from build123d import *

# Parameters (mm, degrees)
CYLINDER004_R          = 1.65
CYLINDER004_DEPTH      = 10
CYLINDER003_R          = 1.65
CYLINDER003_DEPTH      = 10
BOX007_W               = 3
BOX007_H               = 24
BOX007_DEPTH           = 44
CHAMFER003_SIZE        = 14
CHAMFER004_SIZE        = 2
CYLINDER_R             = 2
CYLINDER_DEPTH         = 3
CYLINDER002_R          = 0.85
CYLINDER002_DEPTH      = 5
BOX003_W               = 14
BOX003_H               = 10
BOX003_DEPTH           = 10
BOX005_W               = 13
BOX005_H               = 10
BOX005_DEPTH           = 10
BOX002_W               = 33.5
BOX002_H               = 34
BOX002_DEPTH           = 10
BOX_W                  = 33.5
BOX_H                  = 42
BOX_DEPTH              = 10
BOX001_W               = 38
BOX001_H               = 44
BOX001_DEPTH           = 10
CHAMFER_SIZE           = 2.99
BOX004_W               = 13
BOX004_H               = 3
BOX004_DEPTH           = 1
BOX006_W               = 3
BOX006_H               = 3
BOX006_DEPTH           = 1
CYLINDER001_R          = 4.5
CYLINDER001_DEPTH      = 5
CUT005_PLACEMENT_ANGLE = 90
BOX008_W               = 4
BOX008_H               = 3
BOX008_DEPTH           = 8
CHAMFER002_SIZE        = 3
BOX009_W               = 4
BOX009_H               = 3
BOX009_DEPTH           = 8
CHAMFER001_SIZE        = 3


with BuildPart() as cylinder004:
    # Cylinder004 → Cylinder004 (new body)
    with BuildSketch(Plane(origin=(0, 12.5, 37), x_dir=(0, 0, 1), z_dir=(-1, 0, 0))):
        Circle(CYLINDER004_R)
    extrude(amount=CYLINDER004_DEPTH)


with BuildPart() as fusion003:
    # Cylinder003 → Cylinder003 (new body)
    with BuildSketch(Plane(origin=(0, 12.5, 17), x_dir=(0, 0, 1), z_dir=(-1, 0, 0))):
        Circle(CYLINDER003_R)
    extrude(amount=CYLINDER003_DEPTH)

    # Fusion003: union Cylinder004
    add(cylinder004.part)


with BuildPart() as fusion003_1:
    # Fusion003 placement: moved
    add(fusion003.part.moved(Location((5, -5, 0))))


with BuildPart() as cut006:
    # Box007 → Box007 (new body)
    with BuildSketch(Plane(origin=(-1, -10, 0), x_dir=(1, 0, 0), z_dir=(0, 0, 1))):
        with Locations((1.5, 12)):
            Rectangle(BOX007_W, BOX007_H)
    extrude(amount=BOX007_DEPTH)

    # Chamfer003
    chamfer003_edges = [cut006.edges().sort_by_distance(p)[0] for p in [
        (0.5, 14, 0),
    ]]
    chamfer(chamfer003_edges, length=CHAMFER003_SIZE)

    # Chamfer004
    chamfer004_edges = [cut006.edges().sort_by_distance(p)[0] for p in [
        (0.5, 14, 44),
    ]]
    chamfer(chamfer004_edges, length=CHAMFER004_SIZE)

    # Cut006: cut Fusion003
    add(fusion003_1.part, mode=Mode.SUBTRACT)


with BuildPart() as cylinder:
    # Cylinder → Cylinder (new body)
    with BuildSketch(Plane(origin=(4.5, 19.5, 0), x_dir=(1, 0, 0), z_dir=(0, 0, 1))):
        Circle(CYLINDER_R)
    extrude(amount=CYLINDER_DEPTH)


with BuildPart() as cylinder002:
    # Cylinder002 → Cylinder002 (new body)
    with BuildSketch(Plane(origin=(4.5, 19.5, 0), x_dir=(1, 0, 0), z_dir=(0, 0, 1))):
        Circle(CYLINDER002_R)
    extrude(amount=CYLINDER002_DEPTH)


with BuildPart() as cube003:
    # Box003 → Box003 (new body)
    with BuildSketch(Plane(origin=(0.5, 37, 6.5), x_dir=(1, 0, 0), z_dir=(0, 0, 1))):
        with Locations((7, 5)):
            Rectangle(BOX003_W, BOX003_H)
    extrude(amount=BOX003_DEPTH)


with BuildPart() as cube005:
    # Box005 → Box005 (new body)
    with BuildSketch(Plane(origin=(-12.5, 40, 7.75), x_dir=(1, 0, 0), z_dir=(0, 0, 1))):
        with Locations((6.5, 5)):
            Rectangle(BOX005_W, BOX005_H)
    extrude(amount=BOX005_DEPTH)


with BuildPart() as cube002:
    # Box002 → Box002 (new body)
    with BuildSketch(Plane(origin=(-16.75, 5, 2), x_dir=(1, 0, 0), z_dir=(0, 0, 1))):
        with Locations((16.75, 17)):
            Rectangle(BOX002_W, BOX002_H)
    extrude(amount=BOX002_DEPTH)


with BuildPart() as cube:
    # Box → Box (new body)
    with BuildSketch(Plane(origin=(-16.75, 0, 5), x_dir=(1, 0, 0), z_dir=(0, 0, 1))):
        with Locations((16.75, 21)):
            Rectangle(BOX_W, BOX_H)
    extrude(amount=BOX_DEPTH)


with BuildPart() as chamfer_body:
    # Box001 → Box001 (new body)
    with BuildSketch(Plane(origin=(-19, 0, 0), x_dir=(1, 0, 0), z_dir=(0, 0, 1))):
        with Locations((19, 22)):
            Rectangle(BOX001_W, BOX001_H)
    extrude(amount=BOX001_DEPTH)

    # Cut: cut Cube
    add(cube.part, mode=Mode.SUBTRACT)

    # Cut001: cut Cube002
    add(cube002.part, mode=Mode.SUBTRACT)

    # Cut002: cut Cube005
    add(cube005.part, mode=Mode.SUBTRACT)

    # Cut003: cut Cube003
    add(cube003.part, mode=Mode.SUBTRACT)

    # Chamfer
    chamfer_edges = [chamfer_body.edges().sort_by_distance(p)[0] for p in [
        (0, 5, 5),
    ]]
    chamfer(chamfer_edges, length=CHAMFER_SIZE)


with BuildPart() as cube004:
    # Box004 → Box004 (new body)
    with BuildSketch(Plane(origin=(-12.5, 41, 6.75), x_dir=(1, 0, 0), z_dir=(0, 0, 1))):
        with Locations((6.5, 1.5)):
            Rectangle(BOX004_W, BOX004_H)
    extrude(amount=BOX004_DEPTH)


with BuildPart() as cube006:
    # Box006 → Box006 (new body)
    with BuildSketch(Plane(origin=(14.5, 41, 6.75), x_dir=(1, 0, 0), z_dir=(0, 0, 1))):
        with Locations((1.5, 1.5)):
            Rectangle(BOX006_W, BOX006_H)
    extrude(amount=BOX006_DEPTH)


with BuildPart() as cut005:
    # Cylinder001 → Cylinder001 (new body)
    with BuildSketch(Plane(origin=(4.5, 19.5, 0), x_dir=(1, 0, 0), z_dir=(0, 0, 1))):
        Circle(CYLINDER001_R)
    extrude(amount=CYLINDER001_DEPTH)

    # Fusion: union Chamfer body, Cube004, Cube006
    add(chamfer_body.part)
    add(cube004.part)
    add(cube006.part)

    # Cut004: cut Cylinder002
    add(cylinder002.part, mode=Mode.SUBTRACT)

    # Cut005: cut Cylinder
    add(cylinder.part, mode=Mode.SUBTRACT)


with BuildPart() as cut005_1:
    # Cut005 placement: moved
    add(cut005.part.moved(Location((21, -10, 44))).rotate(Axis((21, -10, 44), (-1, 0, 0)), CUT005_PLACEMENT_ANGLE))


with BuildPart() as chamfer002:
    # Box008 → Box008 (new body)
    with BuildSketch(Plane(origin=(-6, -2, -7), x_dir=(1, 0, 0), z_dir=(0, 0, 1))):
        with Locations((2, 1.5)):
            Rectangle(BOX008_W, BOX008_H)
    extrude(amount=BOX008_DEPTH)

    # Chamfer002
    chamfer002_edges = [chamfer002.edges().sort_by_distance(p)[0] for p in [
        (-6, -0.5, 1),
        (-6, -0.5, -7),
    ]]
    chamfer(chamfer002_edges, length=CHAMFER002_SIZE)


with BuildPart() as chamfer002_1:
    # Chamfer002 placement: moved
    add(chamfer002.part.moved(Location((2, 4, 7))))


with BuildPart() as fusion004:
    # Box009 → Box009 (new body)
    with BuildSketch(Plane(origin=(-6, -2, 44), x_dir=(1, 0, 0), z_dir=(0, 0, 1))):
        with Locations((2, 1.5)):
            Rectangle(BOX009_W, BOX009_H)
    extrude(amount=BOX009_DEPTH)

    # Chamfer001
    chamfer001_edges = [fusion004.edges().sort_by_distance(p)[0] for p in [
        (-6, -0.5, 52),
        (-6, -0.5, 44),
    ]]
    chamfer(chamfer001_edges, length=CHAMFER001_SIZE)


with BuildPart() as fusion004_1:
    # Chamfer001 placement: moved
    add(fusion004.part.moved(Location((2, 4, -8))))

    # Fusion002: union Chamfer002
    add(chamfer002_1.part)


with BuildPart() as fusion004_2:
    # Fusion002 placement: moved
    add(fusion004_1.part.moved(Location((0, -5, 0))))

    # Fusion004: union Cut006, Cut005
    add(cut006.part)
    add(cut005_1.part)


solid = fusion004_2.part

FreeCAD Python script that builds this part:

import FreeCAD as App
import Part
import Sketcher

V = App.Vector
Q = App.Units.Quantity


def edges_at(feature, points):
    """Names of the edges that pass closest to the given points."""
    edges = feature.Shape.Edges
    near = lambda p: min(range(len(edges)), key=lambda i: edges[i].distToShape(Part.Vertex(*p))[0])
    return sorted({f"Edge{near(p) + 1}" for p in points})


def add_polygon(sketch, points):
    """Adds a closed chain of lines whose ends are joined by coincident constraints."""
    first, n = sketch.GeometryCount, len(points)
    for a, b in zip(points, points[1:] + points[:1]):
        sketch.addGeometry(Part.LineSegment(App.Vector(*a, 0), App.Vector(*b, 0)), False)
    for i in range(n):
        sketch.addConstraint(Sketcher.Constraint("Coincident", first + i, 2, first + (i + 1) % n, 1))

doc = App.newDocument("Part")
body = doc.addObject("PartDesign::Body", "Body")

sketch1 = body.newObject("Sketcher::SketchObject", "Sketch")
sketch1.AttachmentSupport = (doc.getObject("YZ_Plane"), [""])
sketch1.MapMode = "FlatFace"
sketch1.addGeometry(Part.Circle(V(12.5, 37, 0), V(0, 0, 1), 1.6), False)
sketch1.addConstraint(Sketcher.Constraint("Diameter", 0, Q("3.3 mm")))
sketch1.addConstraint(Sketcher.Constraint("DistanceY", -1, 1, 0, 3, Q("37 mm")))
sketch1.addConstraint(Sketcher.Constraint("DistanceX", -1, 1, 0, 3, Q("12.5 mm")))
pad1 = body.newObject("PartDesign::Pad", "Pad")
pad1.Profile = sketch1
pad1.Length = 10
pad1.Reversed = True
body2 = doc.addObject("PartDesign::Body", "Body001")
body2.AllowCompound = True

sketch2 = body2.newObject("Sketcher::SketchObject", "Sketch001")
sketch2.AttachmentSupport = (doc.getObject("YZ_Plane001"), [""])
sketch2.MapMode = "FlatFace"
sketch2.addGeometry(Part.Circle(V(12.5, 17, 0), V(0, 0, 1), 1.6), False)
sketch2.addConstraint(Sketcher.Constraint("Diameter", 0, Q("3.3 mm")))
sketch2.addConstraint(Sketcher.Constraint("DistanceY", -1, 1, 0, 3, Q("17 mm")))
sketch2.addConstraint(Sketcher.Constraint("DistanceX", -1, 1, 0, 3, Q("12.5 mm")))
pad2 = body2.newObject("PartDesign::Pad", "Pad001")
pad2.Profile = sketch2
pad2.Length = 10
pad2.Reversed = True
doc.recompute()

boolean = body2.newObject("PartDesign::Boolean", "Boolean")
boolean.Type = "Fuse"
boolean.addObjects([body])
body3 = doc.addObject("PartDesign::Body", "Body002")
body3.AllowCompound = True
doc.recompute()

body2.Placement = App.Placement(V(5, -5, 0), App.Rotation(V(0, 0, 1), 0))
boolean2 = body3.newObject("PartDesign::Boolean", "Boolean001")
boolean2.Type = "Fuse"
boolean2.addObjects([body2])
body4 = doc.addObject("PartDesign::Body", "Body003")

sketch3 = body4.newObject("Sketcher::SketchObject", "Sketch002")
sketch3.AttachmentSupport = (doc.getObject("XY_Plane003"), [""])
sketch3.MapMode = "FlatFace"
add_polygon(sketch3, [(-1, 14), (-1, -10), (2, -10), (2, 14)])
sketch3.addConstraint(Sketcher.Constraint("Vertical", 0))
sketch3.addConstraint(Sketcher.Constraint("Horizontal", 1))
sketch3.addConstraint(Sketcher.Constraint("Vertical", 2))
sketch3.addConstraint(Sketcher.Constraint("Horizontal", 3))
sketch3.addConstraint(Sketcher.Constraint("DistanceX", 1, 1, 1, 2, Q("3 mm")))
sketch3.addConstraint(Sketcher.Constraint("DistanceY", 0, 2, 0, 1, Q("24 mm")))
sketch3.addConstraint(Sketcher.Constraint("DistanceX", 0, 2, -1, 1, Q("1 mm")))
sketch3.addConstraint(Sketcher.Constraint("DistanceY", 0, 2, -1, 1, Q("10 mm")))
pad3 = body4.newObject("PartDesign::Pad", "Pad002")
pad3.Profile = sketch3
pad3.Length = 44
doc.recompute()

chamfer = body4.newObject("PartDesign::Chamfer", "Chamfer")
chamfer.Base = (pad3, edges_at(pad3, [(0.5, 14, 0)]))
chamfer.Size = 14
doc.recompute()

chamfer2 = body4.newObject("PartDesign::Chamfer", "Chamfer001")
chamfer2.Base = (chamfer, edges_at(chamfer, [(0.5, 14, 44)]))
chamfer2.Size = 2
doc.recompute()

boolean3 = body4.newObject("PartDesign::Boolean", "Boolean002")
boolean3.Type = "Cut"
boolean3.addObjects([body3])
body5 = doc.addObject("PartDesign::Body", "Body004")

sketch4 = body5.newObject("Sketcher::SketchObject", "Sketch003")
sketch4.AttachmentSupport = (doc.getObject("XY_Plane004"), [""])
sketch4.MapMode = "FlatFace"
sketch4.addGeometry(Part.Circle(V(4.5, 19.5, 0), V(0, 0, 1), 2), False)
sketch4.addConstraint(Sketcher.Constraint("Diameter", 0, Q("4 mm")))
sketch4.addConstraint(Sketcher.Constraint("DistanceX", -1, 1, 0, 3, Q("4.5 mm")))
sketch4.addConstraint(Sketcher.Constraint("DistanceY", -1, 1, 0, 3, Q("19.5 mm")))
pad4 = body5.newObject("PartDesign::Pad", "Pad003")
pad4.Profile = sketch4
pad4.Length = 3
body6 = doc.addObject("PartDesign::Body", "Body005")

sketch5 = body6.newObject("Sketcher::SketchObject", "Sketch004")
sketch5.AttachmentSupport = (doc.getObject("XY_Plane005"), [""])
sketch5.MapMode = "FlatFace"
sketch5.addGeometry(Part.Circle(V(4.5, 19.5, 0), V(0, 0, 1), 0.8), False)
sketch5.addConstraint(Sketcher.Constraint("Diameter", 0, Q("1.7 mm")))
sketch5.addConstraint(Sketcher.Constraint("DistanceX", -1, 1, 0, 3, Q("4.5 mm")))
sketch5.addConstraint(Sketcher.Constraint("DistanceY", -1, 1, 0, 3, Q("19.5 mm")))
pad5 = body6.newObject("PartDesign::Pad", "Pad004")
pad5.Profile = sketch5
pad5.Length = 5
body7 = doc.addObject("PartDesign::Body", "Body006")

sketch6 = body7.newObject("Sketcher::SketchObject", "Sketch005")
sketch6.AttachmentSupport = (doc.getObject("XY_Plane006"), [""])
sketch6.MapMode = "FlatFace"
sketch6.AttachmentOffset = App.Placement(V(0, 0, 6.5), App.Rotation())
add_polygon(sketch6, [(0, 47), (0, 37), (14, 37), (14, 47)])
sketch6.addConstraint(Sketcher.Constraint("Vertical", 0))
sketch6.addConstraint(Sketcher.Constraint("Horizontal", 1))
sketch6.addConstraint(Sketcher.Constraint("Vertical", 2))
sketch6.addConstraint(Sketcher.Constraint("Horizontal", 3))
sketch6.addConstraint(Sketcher.Constraint("DistanceX", 1, 1, 1, 2, Q("14 mm")))
sketch6.addConstraint(Sketcher.Constraint("DistanceY", 0, 2, 0, 1, Q("10 mm")))
sketch6.addConstraint(Sketcher.Constraint("DistanceY", -1, 1, 0, 2, Q("37 mm")))
sketch6.addConstraint(Sketcher.Constraint("DistanceX", -1, 1, 0, 2, Q("0.5 mm")))
pad6 = body7.newObject("PartDesign::Pad", "Pad005")
pad6.Profile = sketch6
pad6.Length = 10
body8 = doc.addObject("PartDesign::Body", "Body007")

sketch7 = body8.newObject("Sketcher::SketchObject", "Sketch006")
sketch7.AttachmentSupport = (doc.getObject("XY_Plane007"), [""])
sketch7.MapMode = "FlatFace"
sketch7.AttachmentOffset = App.Placement(V(0, 0, 7.75), App.Rotation())
add_polygon(sketch7, [(-12, 50), (-12, 40), (0, 40), (0, 50)])
sketch7.addConstraint(Sketcher.Constraint("Vertical", 0))
sketch7.addConstraint(Sketcher.Constraint("Horizontal", 1))
sketch7.addConstraint(Sketcher.Constraint("Vertical", 2))
sketch7.addConstraint(Sketcher.Constraint("Horizontal", 3))
sketch7.addConstraint(Sketcher.Constraint("DistanceX", 1, 1, 1, 2, Q("13 mm")))
sketch7.addConstraint(Sketcher.Constraint("DistanceY", 0, 2, 0, 1, Q("10 mm")))
sketch7.addConstraint(Sketcher.Constraint("DistanceY", -1, 1, 0, 2, Q("40 mm")))
sketch7.addConstraint(Sketcher.Constraint("DistanceX", 0, 2, -1, 1, Q("12.5 mm")))
pad7 = body8.newObject("PartDesign::Pad", "Pad006")
pad7.Profile = sketch7
pad7.Length = 10
body9 = doc.addObject("PartDesign::Body", "Body008")

sketch8 = body9.newObject("Sketcher::SketchObject", "Sketch007")
sketch8.AttachmentSupport = (doc.getObject("XY_Plane008"), [""])
sketch8.MapMode = "FlatFace"
sketch8.AttachmentOffset = App.Placement(V(0, 0, 2), App.Rotation())
add_polygon(sketch8, [(-17, 39), (-17, 5), (17, 5), (17, 39)])
sketch8.addConstraint(Sketcher.Constraint("Vertical", 0))
sketch8.addConstraint(Sketcher.Constraint("Horizontal", 1))
sketch8.addConstraint(Sketcher.Constraint("Vertical", 2))
sketch8.addConstraint(Sketcher.Constraint("Horizontal", 3))
sketch8.addConstraint(Sketcher.Constraint("DistanceY", 0, 2, 0, 1, Q("34 mm")))
sketch8.addConstraint(Sketcher.Constraint("DistanceX", 1, 1, 1, 2, Q("33.5 mm")))
sketch8.addConstraint(Sketcher.Constraint("DistanceY", -1, 1, 0, 2, Q("5 mm")))
sketch8.addConstraint(Sketcher.Constraint("DistanceX", 0, 2, -1, 1, Q("16.75 mm")))
pad8 = body9.newObject("PartDesign::Pad", "Pad007")
pad8.Profile = sketch8
pad8.Length = 10
body10 = doc.addObject("PartDesign::Body", "Body009")

sketch9 = body10.newObject("Sketcher::SketchObject", "Sketch008")
sketch9.AttachmentSupport = (doc.getObject("XY_Plane009"), [""])
sketch9.MapMode = "FlatFace"
sketch9.AttachmentOffset = App.Placement(V(0, 0, 5), App.Rotation())
add_polygon(sketch9, [(-17, 42), (-17, 0), (17, 0), (17, 42)])
sketch9.addConstraint(Sketcher.Constraint("Vertical", 0))
sketch9.addConstraint(Sketcher.Constraint("Horizontal", 1))
sketch9.addConstraint(Sketcher.Constraint("Vertical", 2))
sketch9.addConstraint(Sketcher.Constraint("Horizontal", 3))
sketch9.addConstraint(Sketcher.Constraint("Symmetric", 0, 2, 1, 2, -1, 1))
sketch9.addConstraint(Sketcher.Constraint("DistanceY", 0, 2, 0, 1, Q("42 mm")))
sketch9.addConstraint(Sketcher.Constraint("DistanceX", 1, 1, 1, 2, Q("33.5 mm")))
pad9 = body10.newObject("PartDesign::Pad", "Pad008")
pad9.Profile = sketch9
pad9.Length = 10
body11 = doc.addObject("PartDesign::Body", "Body010")

sketch10 = body11.newObject("Sketcher::SketchObject", "Sketch009")
sketch10.AttachmentSupport = (doc.getObject("XY_Plane010"), [""])
sketch10.MapMode = "FlatFace"
add_polygon(sketch10, [(-19, 44), (-19, 0), (19, 0), (19, 44)])
sketch10.addConstraint(Sketcher.Constraint("Vertical", 0))
sketch10.addConstraint(Sketcher.Constraint("Horizontal", 1))
sketch10.addConstraint(Sketcher.Constraint("Vertical", 2))
sketch10.addConstraint(Sketcher.Constraint("Horizontal", 3))
sketch10.addConstraint(Sketcher.Constraint("Symmetric", 0, 2, 1, 2, -1, 1))
sketch10.addConstraint(Sketcher.Constraint("DistanceX", 1, 1, 1, 2, Q("38 mm")))
sketch10.addConstraint(Sketcher.Constraint("DistanceY", 0, 2, 0, 1, Q("44 mm")))
pad10 = body11.newObject("PartDesign::Pad", "Pad009")
pad10.Profile = sketch10
pad10.Length = 10
doc.recompute()

boolean4 = body11.newObject("PartDesign::Boolean", "Boolean003")
boolean4.Type = "Cut"
boolean4.addObjects([body10])
doc.recompute()

boolean5 = body11.newObject("PartDesign::Boolean", "Boolean004")
boolean5.Type = "Cut"
boolean5.addObjects([body9])
doc.recompute()

boolean6 = body11.newObject("PartDesign::Boolean", "Boolean005")
boolean6.Type = "Cut"
boolean6.addObjects([body8])
doc.recompute()

boolean7 = body11.newObject("PartDesign::Boolean", "Boolean006")
boolean7.Type = "Cut"
boolean7.addObjects([body7])
doc.recompute()

chamfer3 = body11.newObject("PartDesign::Chamfer", "Chamfer002")
chamfer3.Base = (boolean7, edges_at(boolean7, [(0, 5, 5)]))
chamfer3.Size = 2.99
body12 = doc.addObject("PartDesign::Body", "Body011")

sketch11 = body12.newObject("Sketcher::SketchObject", "Sketch010")
sketch11.AttachmentSupport = (doc.getObject("XY_Plane011"), [""])
sketch11.MapMode = "FlatFace"
sketch11.AttachmentOffset = App.Placement(V(0, 0, 6.75), App.Rotation())
add_polygon(sketch11, [(-12.5, 44), (-12.5, 41), (0.5, 41), (0.5, 44)])
sketch11.addConstraint(Sketcher.Constraint("Vertical", 0))
sketch11.addConstraint(Sketcher.Constraint("Horizontal", 1))
sketch11.addConstraint(Sketcher.Constraint("Vertical", 2))
sketch11.addConstraint(Sketcher.Constraint("Horizontal", 3))
sketch11.addConstraint(Sketcher.Constraint("DistanceX", 1, 1, 1, 2, Q("13 mm")))
sketch11.addConstraint(Sketcher.Constraint("DistanceY", 0, 2, 0, 1, Q("3 mm")))
sketch11.addConstraint(Sketcher.Constraint("DistanceY", -1, 1, 0, 2, Q("41 mm")))
sketch11.addConstraint(Sketcher.Constraint("DistanceX", 0, 2, -1, 1, Q("12.5 mm")))
pad11 = body12.newObject("PartDesign::Pad", "Pad010")
pad11.Profile = sketch11
pad11.Length = 1
body13 = doc.addObject("PartDesign::Body", "Body012")

sketch12 = body13.newObject("Sketcher::SketchObject", "Sketch011")
sketch12.AttachmentSupport = (doc.getObject("XY_Plane012"), [""])
sketch12.MapMode = "FlatFace"
sketch12.AttachmentOffset = App.Placement(V(0, 0, 6.75), App.Rotation())
add_polygon(sketch12, [(14.5, 44), (14.5, 41), (17.5, 41), (17.5, 44)])
sketch12.addConstraint(Sketcher.Constraint("Vertical", 0))
sketch12.addConstraint(Sketcher.Constraint("Horizontal", 1))
sketch12.addConstraint(Sketcher.Constraint("Vertical", 2))
sketch12.addConstraint(Sketcher.Constraint("Horizontal", 3))
sketch12.addConstraint(Sketcher.Constraint("Equal", 3, 0))
sketch12.addConstraint(Sketcher.Constraint("DistanceX", 1, 1, 1, 2, Q("3 mm")))
sketch12.addConstraint(Sketcher.Constraint("DistanceY", -1, 1, 0, 2, Q("41 mm")))
sketch12.addConstraint(Sketcher.Constraint("DistanceX", -1, 1, 0, 2, Q("14.5 mm")))
pad12 = body13.newObject("PartDesign::Pad", "Pad011")
pad12.Profile = sketch12
pad12.Length = 1
body14 = doc.addObject("PartDesign::Body", "Body013")

sketch13 = body14.newObject("Sketcher::SketchObject", "Sketch012")
sketch13.AttachmentSupport = (doc.getObject("XY_Plane013"), [""])
sketch13.MapMode = "FlatFace"
sketch13.addGeometry(Part.Circle(V(4.5, 19.5, 0), V(0, 0, 1), 4.5), False)
sketch13.addConstraint(Sketcher.Constraint("Diameter", 0, Q("9 mm")))
sketch13.addConstraint(Sketcher.Constraint("DistanceX", -1, 1, 0, 3, Q("4.5 mm")))
sketch13.addConstraint(Sketcher.Constraint("DistanceY", -1, 1, 0, 3, Q("19.5 mm")))
pad13 = body14.newObject("PartDesign::Pad", "Pad012")
pad13.Profile = sketch13
pad13.Length = 5
doc.recompute()

boolean8 = body14.newObject("PartDesign::Boolean", "Boolean007")
boolean8.Type = "Fuse"
boolean8.addObjects([body11])
doc.recompute()

boolean9 = body14.newObject("PartDesign::Boolean", "Boolean008")
boolean9.Type = "Fuse"
boolean9.addObjects([body12])
doc.recompute()

boolean10 = body14.newObject("PartDesign::Boolean", "Boolean009")
boolean10.Type = "Fuse"
boolean10.addObjects([body13])
doc.recompute()

boolean11 = body14.newObject("PartDesign::Boolean", "Boolean010")
boolean11.Type = "Cut"
boolean11.addObjects([body6])
doc.recompute()

boolean12 = body14.newObject("PartDesign::Boolean", "Boolean011")
boolean12.Type = "Cut"
boolean12.addObjects([body5])
body15 = doc.addObject("PartDesign::Body", "Body014")
doc.recompute()

body14.Placement = App.Placement(V(21, -10, 44), App.Rotation(V(-1, 0, 0), 90))
boolean13 = body15.newObject("PartDesign::Boolean", "Boolean012")
boolean13.Type = "Fuse"
boolean13.addObjects([body14])
body16 = doc.addObject("PartDesign::Body", "Body015")

sketch14 = body16.newObject("Sketcher::SketchObject", "Sketch013")
sketch14.AttachmentSupport = (doc.getObject("XY_Plane015"), [""])
sketch14.MapMode = "FlatFace"
sketch14.AttachmentOffset = App.Placement(V(0, 0, -7), App.Rotation())
add_polygon(sketch14, [(-6, 1), (-6, -2), (-2, -2), (-2, 1)])
sketch14.addConstraint(Sketcher.Constraint("Vertical", 0))
sketch14.addConstraint(Sketcher.Constraint("Horizontal", 1))
sketch14.addConstraint(Sketcher.Constraint("Vertical", 2))
sketch14.addConstraint(Sketcher.Constraint("Horizontal", 3))
sketch14.addConstraint(Sketcher.Constraint("DistanceX", 1, 1, 1, 2, Q("4 mm")))
sketch14.addConstraint(Sketcher.Constraint("DistanceY", 0, 2, 0, 1, Q("3 mm")))
sketch14.addConstraint(Sketcher.Constraint("DistanceX", 0, 2, -1, 1, Q("6 mm")))
sketch14.addConstraint(Sketcher.Constraint("DistanceY", 0, 2, -1, 1, Q("2 mm")))
pad14 = body16.newObject("PartDesign::Pad", "Pad013")
pad14.Profile = sketch14
pad14.Length = 8
doc.recompute()

chamfer4 = body16.newObject("PartDesign::Chamfer", "Chamfer003")
chamfer4.Base = (pad14, edges_at(pad14, [(-6, -0.5, 1), (-6, -0.5, -7)]))
chamfer4.Size = 3
body17 = doc.addObject("PartDesign::Body", "Body016")
doc.recompute()

body16.Placement = App.Placement(V(2, 4, 7), App.Rotation(V(0, 0, 1), 0))
boolean14 = body17.newObject("PartDesign::Boolean", "Boolean013")
boolean14.Type = "Fuse"
boolean14.addObjects([body16])
body18 = doc.addObject("PartDesign::Body", "Body017")

sketch15 = body18.newObject("Sketcher::SketchObject", "Sketch014")
sketch15.AttachmentSupport = (doc.getObject("XY_Plane017"), [""])
sketch15.MapMode = "FlatFace"
sketch15.AttachmentOffset = App.Placement(V(0, 0, 44), App.Rotation())
add_polygon(sketch15, [(-6, 1), (-6, -2), (-2, -2), (-2, 1)])
sketch15.addConstraint(Sketcher.Constraint("Vertical", 0))
sketch15.addConstraint(Sketcher.Constraint("Horizontal", 1))
sketch15.addConstraint(Sketcher.Constraint("Vertical", 2))
sketch15.addConstraint(Sketcher.Constraint("Horizontal", 3))
sketch15.addConstraint(Sketcher.Constraint("DistanceX", 1, 1, 1, 2, Q("4 mm")))
sketch15.addConstraint(Sketcher.Constraint("DistanceY", 0, 2, 0, 1, Q("3 mm")))
sketch15.addConstraint(Sketcher.Constraint("DistanceX", 0, 2, -1, 1, Q("6 mm")))
sketch15.addConstraint(Sketcher.Constraint("DistanceY", 0, 2, -1, 1, Q("2 mm")))
pad15 = body18.newObject("PartDesign::Pad", "Pad014")
pad15.Profile = sketch15
pad15.Length = 8
doc.recompute()

chamfer5 = body18.newObject("PartDesign::Chamfer", "Chamfer004")
chamfer5.Base = (pad15, edges_at(pad15, [(-6, -0.5, 52), (-6, -0.5, 44)]))
chamfer5.Size = 3
body19 = doc.addObject("PartDesign::Body", "Body018")
body19.AllowCompound = True
doc.recompute()

body18.Placement = App.Placement(V(2, 4, -8), App.Rotation(V(0, 0, 1), 0))
boolean15 = body19.newObject("PartDesign::Boolean", "Boolean014")
boolean15.Type = "Fuse"
boolean15.addObjects([body18])
doc.recompute()

boolean16 = body19.newObject("PartDesign::Boolean", "Boolean015")
boolean16.Type = "Fuse"
boolean16.addObjects([body17])
body20 = doc.addObject("PartDesign::Body", "Body019")
body20.AllowCompound = True
doc.recompute()

body19.Placement = App.Placement(V(0, -5, 0), App.Rotation(V(0, 0, 1), 0))
boolean17 = body20.newObject("PartDesign::Boolean", "Boolean016")
boolean17.Type = "Fuse"
boolean17.addObjects([body19])
doc.recompute()

boolean18 = body20.newObject("PartDesign::Boolean", "Boolean017")
boolean18.Type = "Fuse"
boolean18.addObjects([body4])
doc.recompute()

boolean19 = body20.newObject("PartDesign::Boolean", "Boolean018")
boolean19.Type = "Fuse"
boolean19.addObjects([body15])

doc.recompute()
